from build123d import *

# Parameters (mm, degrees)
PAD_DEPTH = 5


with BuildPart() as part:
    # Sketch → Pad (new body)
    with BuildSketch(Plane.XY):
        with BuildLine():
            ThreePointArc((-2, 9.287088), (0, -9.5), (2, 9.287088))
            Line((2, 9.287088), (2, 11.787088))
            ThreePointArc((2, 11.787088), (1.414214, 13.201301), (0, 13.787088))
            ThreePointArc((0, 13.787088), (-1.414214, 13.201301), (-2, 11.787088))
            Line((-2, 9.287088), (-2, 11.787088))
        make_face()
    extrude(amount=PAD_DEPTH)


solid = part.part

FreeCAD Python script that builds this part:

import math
import FreeCAD as App
import Part
import Sketcher
Q = App.Units.Quantity

doc = App.newDocument("Part")
body = doc.addObject("PartDesign::Body", "Body")

sketch1 = body.newObject("Sketcher::SketchObject", "Sketch")
sketch1.AttachmentSupport = (doc.getObject("XY_Plane"), [""])
sketch1.MapMode = "FlatFace"
sketch1.addGeometry(Part.ArcOfCircle(Part.Circle(App.Vector(0, 0, 0), App.Vector(0, 0, 1), 9.5), math.radians(102.153197), math.radians(437.846803)), False)
sketch1.addGeometry(Part.LineSegment(App.Vector(2, 9.287088, 0), App.Vector(2, 11.787088, 0)), False)
sketch1.addGeometry(Part.ArcOfCircle(Part.Circle(App.Vector(0, 11.787088, 0), App.Vector(0, 0, 1), 2), math.radians(0.000006), math.radians(89.999994)), False)
sketch1.addGeometry(Part.ArcOfCircle(Part.Circle(App.Vector(0, 11.787088, 0), App.Vector(0, 0, 1), 2), math.radians(90.000006), math.radians(179.999994)), False)
sketch1.addGeometry(Part.LineSegment(App.Vector(-2, 11.787088, 0), App.Vector(-2, 9.287088, 0)), False)
sketch1.addConstraint(Sketcher.Constraint("Coincident", 0, 2, 1, 1))
sketch1.addConstraint(Sketcher.Constraint("Tangent", 1, 2, 2, 1))
sketch1.addConstraint(Sketcher.Constraint("Tangent", 2, 2, 3, 1))
sketch1.addConstraint(Sketcher.Constraint("Tangent", 3, 2, 4, 1))
sketch1.addConstraint(Sketcher.Constraint("Coincident", 4, 2, 0, 1))
sketch1.addConstraint(Sketcher.Constraint("Vertical", 1))
sketch1.addConstraint(Sketcher.Constraint("Vertical", 4))
sketch1.addConstraint(Sketcher.Constraint("Coincident", 0, 3, -1, 1))
sketch1.addConstraint(Sketcher.Constraint("Equal", 2, 3))
sketch1.addConstraint(Sketcher.Constraint("PointOnObject", 2, 3, -2))
sketch1.addConstraint(Sketcher.Constraint("PointOnObject", 2, 2, -2))
sketch1.addConstraint(Sketcher.Constraint("Radius", 2, Q("2 mm")))
sketch1.addConstraint(Sketcher.Constraint("Radius", 0, Q("9.5 mm")))
sketch1.addConstraint(Sketcher.Constraint("DistanceY", 1, 1, 1, 2, Q("2.5 mm")))
pad1 = body.newObject("PartDesign::Pad", "Pad")
pad1.Profile = sketch1
pad1.Length = 5

doc.recompute()
